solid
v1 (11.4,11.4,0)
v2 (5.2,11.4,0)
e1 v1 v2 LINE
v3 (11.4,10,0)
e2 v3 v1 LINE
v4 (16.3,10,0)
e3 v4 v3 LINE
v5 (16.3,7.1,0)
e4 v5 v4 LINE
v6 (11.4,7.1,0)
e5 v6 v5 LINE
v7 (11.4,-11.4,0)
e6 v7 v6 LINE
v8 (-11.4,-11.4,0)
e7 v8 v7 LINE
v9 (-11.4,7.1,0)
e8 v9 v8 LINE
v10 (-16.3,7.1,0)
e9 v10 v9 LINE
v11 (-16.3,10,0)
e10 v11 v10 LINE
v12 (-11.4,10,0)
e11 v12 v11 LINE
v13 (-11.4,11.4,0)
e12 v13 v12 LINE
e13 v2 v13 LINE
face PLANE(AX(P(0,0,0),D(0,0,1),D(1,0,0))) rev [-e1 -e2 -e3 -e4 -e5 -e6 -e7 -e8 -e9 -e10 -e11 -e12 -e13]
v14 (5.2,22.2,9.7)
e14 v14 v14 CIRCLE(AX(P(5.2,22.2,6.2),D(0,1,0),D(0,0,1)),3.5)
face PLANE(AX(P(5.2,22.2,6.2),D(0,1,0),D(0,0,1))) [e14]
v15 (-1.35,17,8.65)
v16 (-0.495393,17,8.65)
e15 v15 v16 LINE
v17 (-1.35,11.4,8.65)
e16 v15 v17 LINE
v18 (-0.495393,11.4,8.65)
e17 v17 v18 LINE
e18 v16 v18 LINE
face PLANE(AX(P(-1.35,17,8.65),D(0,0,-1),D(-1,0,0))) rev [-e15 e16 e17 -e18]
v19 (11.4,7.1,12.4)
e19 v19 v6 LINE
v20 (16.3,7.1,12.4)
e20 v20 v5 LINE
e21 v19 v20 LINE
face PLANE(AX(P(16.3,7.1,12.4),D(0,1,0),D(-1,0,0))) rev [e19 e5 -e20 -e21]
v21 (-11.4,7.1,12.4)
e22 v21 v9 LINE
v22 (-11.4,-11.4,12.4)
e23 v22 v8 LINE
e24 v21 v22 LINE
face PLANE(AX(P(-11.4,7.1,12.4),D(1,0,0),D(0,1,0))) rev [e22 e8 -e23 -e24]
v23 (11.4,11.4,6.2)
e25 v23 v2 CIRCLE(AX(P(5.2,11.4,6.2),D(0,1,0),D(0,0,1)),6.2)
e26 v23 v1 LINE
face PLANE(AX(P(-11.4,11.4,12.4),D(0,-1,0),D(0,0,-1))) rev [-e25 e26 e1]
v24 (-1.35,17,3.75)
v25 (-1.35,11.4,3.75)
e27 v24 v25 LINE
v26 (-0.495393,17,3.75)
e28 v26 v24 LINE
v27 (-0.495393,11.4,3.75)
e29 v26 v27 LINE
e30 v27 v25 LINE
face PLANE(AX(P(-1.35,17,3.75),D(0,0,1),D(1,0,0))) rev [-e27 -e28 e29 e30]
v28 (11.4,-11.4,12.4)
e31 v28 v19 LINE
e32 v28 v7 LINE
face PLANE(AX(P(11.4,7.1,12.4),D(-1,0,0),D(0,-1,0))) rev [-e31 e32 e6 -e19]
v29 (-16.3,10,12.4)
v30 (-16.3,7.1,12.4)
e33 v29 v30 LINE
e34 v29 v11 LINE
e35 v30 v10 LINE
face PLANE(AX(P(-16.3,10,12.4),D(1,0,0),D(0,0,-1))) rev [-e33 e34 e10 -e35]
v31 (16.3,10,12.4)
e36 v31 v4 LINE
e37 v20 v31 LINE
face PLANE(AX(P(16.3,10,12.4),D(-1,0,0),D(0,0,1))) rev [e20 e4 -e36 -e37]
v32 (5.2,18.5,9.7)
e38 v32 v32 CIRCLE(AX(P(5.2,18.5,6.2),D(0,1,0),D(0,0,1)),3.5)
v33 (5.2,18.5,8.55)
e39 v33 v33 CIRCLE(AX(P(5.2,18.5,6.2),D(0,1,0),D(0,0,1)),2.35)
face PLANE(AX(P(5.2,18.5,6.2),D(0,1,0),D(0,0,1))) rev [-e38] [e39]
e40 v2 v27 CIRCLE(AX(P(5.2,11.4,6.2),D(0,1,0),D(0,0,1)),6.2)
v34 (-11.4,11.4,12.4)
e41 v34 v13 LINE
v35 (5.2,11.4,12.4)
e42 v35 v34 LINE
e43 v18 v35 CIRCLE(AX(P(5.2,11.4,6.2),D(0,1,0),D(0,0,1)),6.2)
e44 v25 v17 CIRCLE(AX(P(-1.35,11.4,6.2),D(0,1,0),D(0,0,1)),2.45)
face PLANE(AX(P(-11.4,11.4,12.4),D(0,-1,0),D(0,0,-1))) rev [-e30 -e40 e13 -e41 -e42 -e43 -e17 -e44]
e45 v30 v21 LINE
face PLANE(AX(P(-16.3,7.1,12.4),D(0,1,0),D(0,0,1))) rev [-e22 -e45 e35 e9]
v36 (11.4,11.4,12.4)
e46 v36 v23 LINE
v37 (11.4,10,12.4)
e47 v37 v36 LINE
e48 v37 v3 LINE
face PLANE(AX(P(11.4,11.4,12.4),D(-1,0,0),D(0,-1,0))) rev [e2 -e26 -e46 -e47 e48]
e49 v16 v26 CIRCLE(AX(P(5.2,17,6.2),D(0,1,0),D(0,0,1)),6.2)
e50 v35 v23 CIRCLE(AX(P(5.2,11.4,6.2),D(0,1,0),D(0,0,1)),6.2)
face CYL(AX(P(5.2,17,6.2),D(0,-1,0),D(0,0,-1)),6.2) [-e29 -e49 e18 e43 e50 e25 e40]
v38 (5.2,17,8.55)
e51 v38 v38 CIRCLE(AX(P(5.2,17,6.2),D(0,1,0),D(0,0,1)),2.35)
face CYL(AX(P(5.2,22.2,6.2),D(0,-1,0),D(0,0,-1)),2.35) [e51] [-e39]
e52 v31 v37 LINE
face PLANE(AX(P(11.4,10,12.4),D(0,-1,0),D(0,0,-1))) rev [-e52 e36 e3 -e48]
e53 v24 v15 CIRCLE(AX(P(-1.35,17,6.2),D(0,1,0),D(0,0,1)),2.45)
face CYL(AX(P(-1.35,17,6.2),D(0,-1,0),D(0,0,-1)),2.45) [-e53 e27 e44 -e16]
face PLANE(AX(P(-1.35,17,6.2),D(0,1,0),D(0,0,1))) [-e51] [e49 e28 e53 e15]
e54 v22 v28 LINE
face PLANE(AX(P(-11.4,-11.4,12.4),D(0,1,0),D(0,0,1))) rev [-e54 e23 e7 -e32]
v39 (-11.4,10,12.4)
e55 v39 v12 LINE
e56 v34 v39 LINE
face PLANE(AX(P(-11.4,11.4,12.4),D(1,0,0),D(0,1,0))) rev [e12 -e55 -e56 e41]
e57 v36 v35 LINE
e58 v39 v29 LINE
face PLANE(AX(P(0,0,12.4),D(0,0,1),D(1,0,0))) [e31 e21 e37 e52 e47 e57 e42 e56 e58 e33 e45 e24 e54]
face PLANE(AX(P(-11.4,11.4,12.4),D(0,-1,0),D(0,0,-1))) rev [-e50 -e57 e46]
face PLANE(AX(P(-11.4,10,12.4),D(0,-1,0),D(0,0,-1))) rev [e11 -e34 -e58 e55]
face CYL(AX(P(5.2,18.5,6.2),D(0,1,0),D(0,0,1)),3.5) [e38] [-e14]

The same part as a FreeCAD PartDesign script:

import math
import FreeCAD as App
import Part
import Sketcher

V = App.Vector
Q = App.Units.Quantity

doc = App.newDocument("Part")
body = doc.addObject("PartDesign::Body", "Body")

sketch1 = body.newObject("Sketcher::SketchObject", "Sketch")
sketch1.AttachmentSupport = (doc.getObject("XY_Plane"), [""])
sketch1.MapMode = "FlatFace"
sketch1.addGeometry(Part.LineSegment(V(-11.4, 10, 0), V(-16.3, 10, 0)), False)
sketch1.addGeometry(Part.LineSegment(V(-16.3, 10, 0), V(-16.3, 7.1, 0)), False)
sketch1.addGeometry(Part.LineSegment(V(-16.3, 7.1, 0), V(-11.4, 7.1, 0)), False)
sketch1.addGeometry(Part.LineSegment(V(-11.4, 7.1, 0), V(-11.4, -11.4, 0)), False)
sketch1.addGeometry(Part.LineSegment(V(-11.4, -11.4, 0), V(11.4, -11.4, 0)), False)
sketch1.addGeometry(Part.LineSegment(V(11.4, -11.4, 0), V(11.4, 7.1, 0)), False)
sketch1.addGeometry(Part.LineSegment(V(11.4, 7.1, 0), V(16.3, 7.1, 0)), False)
sketch1.addGeometry(Part.LineSegment(V(16.3, 7.1, 0), V(16.3, 10, 0)), False)
sketch1.addGeometry(Part.LineSegment(V(16.3, 10, 0), V(11.4, 10, 0)), False)
sketch1.addGeometry(Part.LineSegment(V(11.4, 10, 0), V(11.4, 11.4, 0)), False)
sketch1.addGeometry(Part.LineSegment(V(11.4, 11.4, 0), V(-11.4, 11.4, 0)), False)
sketch1.addGeometry(Part.LineSegment(V(-11.4, 11.4, 0), V(-11.4, 10, 0)), False)
sketch1.addConstraint(Sketcher.Constraint("Coincident", 0, 2, 1, 1))
sketch1.addConstraint(Sketcher.Constraint("Coincident", 1, 2, 2, 1))
sketch1.addConstraint(Sketcher.Constraint("Coincident", 2, 2, 3, 1))
sketch1.addConstraint(Sketcher.Constraint("Coincident", 3, 2, 4, 1))
sketch1.addConstraint(Sketcher.Constraint("Coincident", 4, 2, 5, 1))
sketch1.addConstraint(Sketcher.Constraint("Coincident", 5, 2, 6, 1))
sketch1.addConstraint(Sketcher.Constraint("Coincident", 6, 2, 7, 1))
sketch1.addConstraint(Sketcher.Constraint("Coincident", 7, 2, 8, 1))
sketch1.addConstraint(Sketcher.Constraint("Coincident", 8, 2, 9, 1))
sketch1.addConstraint(Sketcher.Constraint("Coincident", 9, 2, 10, 1))
sketch1.addConstraint(Sketcher.Constraint("Coincident", 10, 2, 11, 1))
sketch1.addConstraint(Sketcher.Constraint("Coincident", 11, 2, 0, 1))
sketch1.addConstraint(Sketcher.Constraint("Horizontal", 0))
sketch1.addConstraint(Sketcher.Constraint("Vertical", 1))
sketch1.addConstraint(Sketcher.Constraint("Horizontal", 2))
sketch1.addConstraint(Sketcher.Constraint("Vertical", 3))
sketch1.addConstraint(Sketcher.Constraint("Horizontal", 4))
sketch1.addConstraint(Sketcher.Constraint("Vertical", 5))
sketch1.addConstraint(Sketcher.Constraint("Horizontal", 6))
sketch1.addConstraint(Sketcher.Constraint("Vertical", 7))
sketch1.addConstraint(Sketcher.Constraint("Horizontal", 8))
sketch1.addConstraint(Sketcher.Constraint("Vertical", 9))
sketch1.addConstraint(Sketcher.Constraint("Horizontal", 10))
sketch1.addConstraint(Sketcher.Constraint("Vertical", 11))
sketch1.addConstraint(Sketcher.Constraint("Symmetric", 3, 2, 9, 2, -1, 1))
sketch1.addConstraint(Sketcher.Constraint("Symmetric", 2, 2, 5, 2, -2))
sketch1.addConstraint(Sketcher.Constraint("Symmetric", 0, 2, 7, 2, -2))
sketch1.addConstraint(Sketcher.Constraint("Vertical", 3, 2, 10, 2))
sketch1.addConstraint(Sketcher.Constraint("DistanceX", 0, 2, 0, 1, Q("4.9 mm")))
sketch1.addConstraint(Sketcher.Constraint("DistanceX", 4, 1, 4, 2, Q("22.8 mm")))
sketch1.addConstraint(Sketcher.Constraint("DistanceY", 1, 2, 1, 1, Q("2.9 mm")))
sketch1.addConstraint(Sketcher.Constraint("DistanceY", 3, 2, 3, 1, Q("18.5 mm")))
sketch1.addConstraint(Sketcher.Constraint("DistanceY", 9, 1, 9, 2, Q("1.4 mm")))
pad1 = body.newObject("PartDesign::Pad", "Pad")
pad1.Profile = sketch1
pad1.Length = 12.4

sketch2 = body.newObject("Sketcher::SketchObject", "Sketch001")
sketch2.AttachmentSupport = (doc.getObject("XZ_Plane"), [""])
sketch2.MapMode = "FlatFace"
sketch2.AttachmentOffset = App.Placement(V(0, 0, -11.4), App.Rotation())
sketch2.addGeometry(Part.LineSegment(V(-0.5, 3.8, 0), V(-1.4, 3.8, 0)), False)
sketch2.addGeometry(Part.ArcOfCircle(Part.Circle(V(-1.4, 6.2, 0), V(0, 0, 1), 2.5), math.radians(90), math.radians(270)), False)
sketch2.addGeometry(Part.LineSegment(V(-1.4, 8.7, 0), V(-0.5, 8.7, 0)), False)
sketch2.addGeometry(Part.ArcOfCircle(Part.Circle(V(5.2, 6.2, 0), V(0, 0, 1), 6.2), math.radians(-157), math.radians(157)), False)
sketch2.addConstraint(Sketcher.Constraint("Tangent", 0, 2, 1, 2))
sketch2.addConstraint(Sketcher.Constraint("Tangent", 1, 1, 2, 1))
sketch2.addConstraint(Sketcher.Constraint("Coincident", 2, 2, 3, 2))
sketch2.addConstraint(Sketcher.Constraint("Coincident", 3, 1, 0, 1))
sketch2.addConstraint(Sketcher.Constraint("Horizontal", 0))
sketch2.addConstraint(Sketcher.Constraint("Horizontal", 2))
sketch2.addConstraint(Sketcher.Constraint("Horizontal", 1, 3, 3, 3))
sketch2.addConstraint(Sketcher.Constraint("Radius", 3, Q("6.2 mm")))
sketch2.addConstraint(Sketcher.Constraint("Radius", 1, Q("2.45 mm")))
sketch2.addConstraint(Sketcher.Constraint("DistanceY", -1, 1, 1, 3, Q("6.2 mm")))
sketch2.addConstraint(Sketcher.Constraint("DistanceX", -1, 1, 3, 3, Q("5.2 mm")))
sketch2.addConstraint(Sketcher.Constraint("DistanceX", 1, 3, -1, 1, Q("1.35 mm")))
pad2 = body.newObject("PartDesign::Pad", "Pad001")
pad2.Profile = sketch2
pad2.Length = 5.6
pad2.Reversed = True

sketch3 = body.newObject("Sketcher::SketchObject", "Sketch002")
sketch3.AttachmentSupport = (doc.getObject("XZ_Plane"), [""])
sketch3.MapMode = "FlatFace"
sketch3.AttachmentOffset = App.Placement(V(0, 0, -17), App.Rotation())
sketch3.addGeometry(Part.Circle(V(5.2, 6.2, 0), V(0, 0, 1), 2.4), False)
sketch3.addConstraint(Sketcher.Constraint("Diameter", 0, Q("4.7 mm")))
sketch3.addConstraint(Sketcher.Constraint("DistanceX", -1, 1, 0, 3, Q("5.2 mm")))
sketch3.addConstraint(Sketcher.Constraint("DistanceY", -1, 1, 0, 3, Q("6.2 mm")))
pad3 = body.newObject("PartDesign::Pad", "Pad002")
pad3.Profile = sketch3
pad3.Length = 5.2
pad3.Reversed = True

sketch4 = body.newObject("Sketcher::SketchObject", "Sketch003")
sketch4.AttachmentSupport = (doc.getObject("XZ_Plane"), [""])
sketch4.MapMode = "FlatFace"
sketch4.AttachmentOffset = App.Placement(V(0, 0, -22.2), App.Rotation())
sketch4.addGeometry(Part.Circle(V(5.2, 6.2, 0), V(0, 0, 1), 3.5), False)
sketch4.addConstraint(Sketcher.Constraint("Diameter", 0, Q("7 mm")))
sketch4.addConstraint(Sketcher.Constraint("DistanceX", -1, 1, 0, 3, Q("5.2 mm")))
sketch4.addConstraint(Sketcher.Constraint("DistanceY", -1, 1, 0, 3, Q("6.2 mm")))
pad4 = body.newObject("PartDesign::Pad", "Pad003")
pad4.Profile = sketch4
pad4.Length = 3.7

doc.recompute()
